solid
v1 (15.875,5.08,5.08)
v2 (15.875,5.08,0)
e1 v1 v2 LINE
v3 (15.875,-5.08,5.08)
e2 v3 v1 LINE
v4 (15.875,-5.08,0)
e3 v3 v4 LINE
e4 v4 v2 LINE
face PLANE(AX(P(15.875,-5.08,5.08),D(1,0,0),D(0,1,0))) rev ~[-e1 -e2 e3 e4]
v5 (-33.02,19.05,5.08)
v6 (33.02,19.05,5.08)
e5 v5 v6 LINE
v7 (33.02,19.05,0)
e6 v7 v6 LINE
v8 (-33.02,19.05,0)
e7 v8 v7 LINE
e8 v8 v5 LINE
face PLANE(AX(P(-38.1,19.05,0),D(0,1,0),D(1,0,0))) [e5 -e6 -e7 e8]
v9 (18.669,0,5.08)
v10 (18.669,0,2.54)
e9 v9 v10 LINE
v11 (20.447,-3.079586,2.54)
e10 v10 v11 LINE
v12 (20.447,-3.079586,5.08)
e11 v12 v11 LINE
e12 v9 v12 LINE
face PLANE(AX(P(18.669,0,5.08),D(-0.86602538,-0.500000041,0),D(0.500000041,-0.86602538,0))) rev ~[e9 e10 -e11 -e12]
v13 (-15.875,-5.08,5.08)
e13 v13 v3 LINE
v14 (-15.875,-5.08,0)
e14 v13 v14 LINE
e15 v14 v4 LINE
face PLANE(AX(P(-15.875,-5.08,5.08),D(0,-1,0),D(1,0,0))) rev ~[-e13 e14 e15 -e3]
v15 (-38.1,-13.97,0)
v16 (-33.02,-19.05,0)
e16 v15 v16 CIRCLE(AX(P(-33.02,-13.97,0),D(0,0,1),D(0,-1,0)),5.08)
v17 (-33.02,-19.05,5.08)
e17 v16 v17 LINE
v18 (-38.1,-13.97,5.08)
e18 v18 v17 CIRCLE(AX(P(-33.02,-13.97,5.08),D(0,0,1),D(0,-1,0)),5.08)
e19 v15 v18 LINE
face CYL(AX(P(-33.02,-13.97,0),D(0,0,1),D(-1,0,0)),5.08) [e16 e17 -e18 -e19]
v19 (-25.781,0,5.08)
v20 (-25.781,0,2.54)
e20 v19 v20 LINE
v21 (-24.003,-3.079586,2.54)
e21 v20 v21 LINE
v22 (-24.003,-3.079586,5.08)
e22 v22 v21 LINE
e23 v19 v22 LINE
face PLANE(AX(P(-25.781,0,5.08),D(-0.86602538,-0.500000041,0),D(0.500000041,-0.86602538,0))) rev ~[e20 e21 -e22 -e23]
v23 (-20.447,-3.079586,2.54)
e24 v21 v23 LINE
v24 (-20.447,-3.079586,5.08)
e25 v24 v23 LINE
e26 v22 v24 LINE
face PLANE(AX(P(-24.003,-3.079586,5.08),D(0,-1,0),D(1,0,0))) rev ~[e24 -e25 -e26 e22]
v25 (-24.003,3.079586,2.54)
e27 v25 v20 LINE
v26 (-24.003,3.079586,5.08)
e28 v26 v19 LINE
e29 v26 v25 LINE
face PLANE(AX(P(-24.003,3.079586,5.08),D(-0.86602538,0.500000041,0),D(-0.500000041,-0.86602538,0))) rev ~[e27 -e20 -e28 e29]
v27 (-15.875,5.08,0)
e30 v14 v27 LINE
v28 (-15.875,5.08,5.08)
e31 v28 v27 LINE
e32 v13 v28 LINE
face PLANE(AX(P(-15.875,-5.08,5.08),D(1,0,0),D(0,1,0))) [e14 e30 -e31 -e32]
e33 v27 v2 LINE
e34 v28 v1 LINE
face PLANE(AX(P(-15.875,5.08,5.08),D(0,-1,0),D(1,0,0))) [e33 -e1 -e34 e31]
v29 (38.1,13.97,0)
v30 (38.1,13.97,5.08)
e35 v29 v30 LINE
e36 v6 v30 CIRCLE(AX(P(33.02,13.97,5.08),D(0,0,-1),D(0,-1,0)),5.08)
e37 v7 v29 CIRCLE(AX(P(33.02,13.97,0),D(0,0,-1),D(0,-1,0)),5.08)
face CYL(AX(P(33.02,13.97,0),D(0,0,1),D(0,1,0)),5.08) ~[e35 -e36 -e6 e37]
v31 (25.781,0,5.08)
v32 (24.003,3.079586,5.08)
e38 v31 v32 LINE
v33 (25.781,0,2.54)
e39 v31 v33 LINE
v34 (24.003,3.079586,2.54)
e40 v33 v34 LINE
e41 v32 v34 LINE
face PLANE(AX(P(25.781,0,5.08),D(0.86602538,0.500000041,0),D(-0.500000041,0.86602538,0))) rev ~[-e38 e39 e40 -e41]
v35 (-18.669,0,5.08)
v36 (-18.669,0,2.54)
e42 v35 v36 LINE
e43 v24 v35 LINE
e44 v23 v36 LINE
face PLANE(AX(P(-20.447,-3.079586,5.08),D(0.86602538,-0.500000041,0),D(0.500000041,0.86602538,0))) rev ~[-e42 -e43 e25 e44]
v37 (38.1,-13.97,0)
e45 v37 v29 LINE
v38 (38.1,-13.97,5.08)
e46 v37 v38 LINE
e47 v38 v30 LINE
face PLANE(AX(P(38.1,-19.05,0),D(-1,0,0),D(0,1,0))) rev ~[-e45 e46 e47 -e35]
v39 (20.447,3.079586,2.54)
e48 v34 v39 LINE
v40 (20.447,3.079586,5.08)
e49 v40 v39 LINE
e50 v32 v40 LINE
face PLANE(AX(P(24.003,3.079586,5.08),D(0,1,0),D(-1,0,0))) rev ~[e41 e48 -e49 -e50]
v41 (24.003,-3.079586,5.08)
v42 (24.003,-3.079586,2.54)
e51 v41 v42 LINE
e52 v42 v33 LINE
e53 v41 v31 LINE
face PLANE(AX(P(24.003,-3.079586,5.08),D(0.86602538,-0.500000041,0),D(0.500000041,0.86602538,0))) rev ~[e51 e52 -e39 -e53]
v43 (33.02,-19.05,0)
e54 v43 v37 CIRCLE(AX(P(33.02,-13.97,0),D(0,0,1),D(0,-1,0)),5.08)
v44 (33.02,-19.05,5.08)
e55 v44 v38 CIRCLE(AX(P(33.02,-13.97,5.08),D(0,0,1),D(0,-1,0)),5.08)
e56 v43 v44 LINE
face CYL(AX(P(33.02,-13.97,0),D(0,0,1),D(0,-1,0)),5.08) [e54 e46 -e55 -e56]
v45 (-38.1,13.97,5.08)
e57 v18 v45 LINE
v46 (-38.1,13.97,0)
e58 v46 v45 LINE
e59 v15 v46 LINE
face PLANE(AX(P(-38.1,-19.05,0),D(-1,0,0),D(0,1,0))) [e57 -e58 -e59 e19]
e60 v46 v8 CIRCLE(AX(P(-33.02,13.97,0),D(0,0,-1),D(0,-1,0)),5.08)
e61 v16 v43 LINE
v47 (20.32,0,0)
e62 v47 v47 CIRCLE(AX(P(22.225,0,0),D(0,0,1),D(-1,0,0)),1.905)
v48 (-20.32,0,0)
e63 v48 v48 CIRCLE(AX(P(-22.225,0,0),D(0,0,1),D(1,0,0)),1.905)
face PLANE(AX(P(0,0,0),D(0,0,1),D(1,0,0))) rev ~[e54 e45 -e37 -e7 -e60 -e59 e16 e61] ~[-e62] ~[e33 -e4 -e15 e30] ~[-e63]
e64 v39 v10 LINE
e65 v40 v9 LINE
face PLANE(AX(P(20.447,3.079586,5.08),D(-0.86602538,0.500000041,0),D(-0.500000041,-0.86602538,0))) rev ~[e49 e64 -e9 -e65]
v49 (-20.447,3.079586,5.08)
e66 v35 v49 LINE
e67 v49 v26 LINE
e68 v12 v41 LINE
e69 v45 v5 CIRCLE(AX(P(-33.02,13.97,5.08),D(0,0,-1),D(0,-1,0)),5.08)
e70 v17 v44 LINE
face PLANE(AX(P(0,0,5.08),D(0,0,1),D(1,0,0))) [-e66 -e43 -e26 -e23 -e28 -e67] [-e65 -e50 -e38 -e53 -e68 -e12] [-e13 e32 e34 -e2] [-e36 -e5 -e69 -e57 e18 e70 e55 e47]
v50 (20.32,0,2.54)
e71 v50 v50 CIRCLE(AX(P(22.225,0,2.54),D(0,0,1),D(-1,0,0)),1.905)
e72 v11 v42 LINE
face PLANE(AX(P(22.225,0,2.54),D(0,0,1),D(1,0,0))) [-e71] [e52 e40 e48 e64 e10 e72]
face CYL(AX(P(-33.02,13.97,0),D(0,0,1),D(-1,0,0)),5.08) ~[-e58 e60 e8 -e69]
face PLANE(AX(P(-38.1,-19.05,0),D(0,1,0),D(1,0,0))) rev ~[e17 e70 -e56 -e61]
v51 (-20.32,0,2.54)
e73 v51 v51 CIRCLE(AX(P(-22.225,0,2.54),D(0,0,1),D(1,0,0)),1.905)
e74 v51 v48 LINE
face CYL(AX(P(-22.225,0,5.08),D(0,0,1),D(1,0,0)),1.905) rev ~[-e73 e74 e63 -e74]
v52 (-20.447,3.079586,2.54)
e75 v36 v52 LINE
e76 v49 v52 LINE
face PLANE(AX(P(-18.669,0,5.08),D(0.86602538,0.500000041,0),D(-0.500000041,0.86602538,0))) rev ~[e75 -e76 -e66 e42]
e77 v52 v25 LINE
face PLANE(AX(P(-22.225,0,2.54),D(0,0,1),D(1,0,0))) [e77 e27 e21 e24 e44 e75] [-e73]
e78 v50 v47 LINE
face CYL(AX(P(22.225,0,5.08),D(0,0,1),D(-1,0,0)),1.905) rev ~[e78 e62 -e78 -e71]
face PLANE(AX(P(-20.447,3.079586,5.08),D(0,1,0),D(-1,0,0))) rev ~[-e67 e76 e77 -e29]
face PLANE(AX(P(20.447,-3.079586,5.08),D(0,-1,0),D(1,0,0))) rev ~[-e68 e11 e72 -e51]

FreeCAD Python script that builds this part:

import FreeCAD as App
import Part
import Sketcher
from FreeCAD import Vector
Q = App.Units.Quantity


def edges_at(feature, points):
    """Names of the edges that pass closest to the given points."""
    edges = feature.Shape.Edges
    near = lambda p: min(range(len(edges)), key=lambda i: edges[i].distToShape(Part.Vertex(*p))[0])
    return sorted({f"Edge{near(p) + 1}" for p in points})


def add_polygon(sketch, points):
    """Adds a closed chain of lines whose ends are joined by coincident constraints."""
    first, n = sketch.GeometryCount, len(points)
    for a, b in zip(points, points[1:] + points[:1]):
        sketch.addGeometry(Part.LineSegment(App.Vector(*a, 0), App.Vector(*b, 0)), False)
    for i in range(n):
        sketch.addConstraint(Sketcher.Constraint("Coincident", first + i, 2, first + (i + 1) % n, 1))

doc = App.newDocument("Part")
body = doc.addObject("PartDesign::Body", "Body")

sketch1 = body.newObject("Sketcher::SketchObject", "Sketch")
sketch1.AttachmentSupport = (doc.getObject("XY_Plane"), [""])
sketch1.MapMode = "FlatFace"
add_polygon(sketch1, [(-38, 19), (-38, -19), (38, -19), (38, 19)])
sketch1.addConstraint([
    Sketcher.Constraint("Vertical", 0),
    Sketcher.Constraint("Horizontal", 1),
    Sketcher.Constraint("Vertical", 2),
    Sketcher.Constraint("Horizontal", 3),
    Sketcher.Constraint("Symmetric", 0, 2, 2, 2, -1, 1),
    Sketcher.Constraint("DistanceX", 1, 1, 1, 2, Q("3 in")),
    Sketcher.Constraint("DistanceY", 0, 2, 0, 1, Q("1.5 in")),
])
pad1 = body.newObject("PartDesign::Pad", "Pad")
pad1.Profile = sketch1
pad1.Length = Q("0.2 in")

sketch2 = body.newObject("Sketcher::SketchObject", "Sketch001")
sketch2.AttachmentSupport = (doc.getObject("XY_Plane"), [""])
sketch2.MapMode = "FlatFace"
sketch2.AttachmentOffset = App.Placement(Vector(0, 0, 0.2 * 25.4), App.Rotation())
add_polygon(sketch2, [(-16, 5), (-16, -5), (16, -5), (16, 5)])
sketch2.addConstraint([
    Sketcher.Constraint("Vertical", 0),
    Sketcher.Constraint("Horizontal", 1),
    Sketcher.Constraint("Vertical", 2),
    Sketcher.Constraint("Horizontal", 3),
    Sketcher.Constraint("Symmetric", 0, 2, 2, 2, -1, 1),
    Sketcher.Constraint("DistanceY", 0, 2, 0, 1, Q("0.4 in")),
    Sketcher.Constraint("DistanceX", 1, 1, 1, 2, Q("1.25 in")),
])
pocket1 = body.newObject("PartDesign::Pocket", "Pocket")
pocket1.Profile = sketch2
pocket1.Type = "ThroughAll"

sketch3 = body.newObject("Sketcher::SketchObject", "Sketch002")
sketch3.AttachmentSupport = (doc.getObject("XY_Plane"), [""])
sketch3.MapMode = "FlatFace"
sketch3.AttachmentOffset = App.Placement(Vector(0, 0, 0.2 * 25.4), App.Rotation())
sketch3.addGeometry([
    Part.Circle(Vector(-22.2, 0, 0), Vector(0, 0, 1), 1.9),
    Part.Circle(Vector(22.2, 0, 0), Vector(0, 0, 1), 1.9),
], False)
sketch3.addConstraint([
    Sketcher.Constraint("Equal", 0, 1),
    Sketcher.Constraint("Symmetric", 0, 3, 1, 3, -1, 1),
    Sketcher.Constraint("PointOnObject", 0, 3, -1),
    Sketcher.Constraint("Diameter", 0, Q("0.15 in")),
    Sketcher.Constraint("DistanceX", 0, 3, 1, 3, Q("1.75 in")),
])
pocket2 = body.newObject("PartDesign::Pocket", "Pocket001")
pocket2.Profile = sketch3
pocket2.Type = "ThroughAll"

sketch4 = body.newObject("Sketcher::SketchObject", "Sketch003")
sketch4.AttachmentSupport = (doc.getObject("XY_Plane"), [""])
sketch4.MapMode = "FlatFace"
sketch4.AttachmentOffset = App.Placement(Vector(0, 0, 0.2 * 25.4), App.Rotation())
add_polygon(sketch4, [(-18.7, 0), (-20.4, 3.1), (-24, 3.1), (-25.8, 0), (-24, -3.1), (-20.4, -3.1)])
add_polygon(sketch4, [(25.8, 0), (24, 3.1), (20.4, 3.1), (18.7, 0), (20.4, -3.1), (24, -3.1)])
sketch4.addConstraint([
    Sketcher.Constraint("Horizontal", 1),
    Sketcher.Constraint("Horizontal", 4),
    Sketcher.Constraint("Horizontal", 7),
    Sketcher.Constraint("Horizontal", 10),
    Sketcher.Constraint("Symmetric", 3, 2, 6, 2, -1, 1),
    Sketcher.Constraint("Symmetric", 5, 2, 8, 2, -1, 1),
    Sketcher.Constraint("Symmetric", 0, 2, 9, 2, -1, 1),
    Sketcher.Constraint("Symmetric", 2, 2, 11, 2, -1, 1),
    Sketcher.Constraint("Symmetric", 1, 2, 6, 2, -2),
    Sketcher.Constraint("PointOnObject", 2, 2, -1),
    Sketcher.Constraint("PointOnObject", 5, 2, -1),
    Sketcher.Constraint("Parallel", 0, 3),
    Sketcher.Constraint("Parallel", 2, 5),
    Sketcher.Constraint("Parallel", 5, 8),
    Sketcher.Constraint("Parallel", 8, 11),
    Sketcher.Constraint("Angle", 0, Q("120.000003 deg")),
    Sketcher.Constraint("DistanceX", 1, 2, 1, 1, Q("0.14 in")),
    Sketcher.Constraint("Distance", 0, Q("0.14 in")),
    Sketcher.Constraint("DistanceX", 5, 2, 6, 2, Q("1.68 in")),
])
pocket3 = body.newObject("PartDesign::Pocket", "Pocket002")
pocket3.Profile = sketch4
pocket3.Length = Q("0.1 in")
doc.recompute()

fillet = body.newObject("PartDesign::Fillet", "Fillet")
fillet.Base = (pocket3, edges_at(pocket3, [
    (38.1, -19.05, 2.54),
    (38.1, 19.05, 2.54),
    (-38.1, 19.05, 2.54),
    (-38.1, -19.05, 2.54),
]))
fillet.Radius = Q("0.2 in")

doc.recompute()
